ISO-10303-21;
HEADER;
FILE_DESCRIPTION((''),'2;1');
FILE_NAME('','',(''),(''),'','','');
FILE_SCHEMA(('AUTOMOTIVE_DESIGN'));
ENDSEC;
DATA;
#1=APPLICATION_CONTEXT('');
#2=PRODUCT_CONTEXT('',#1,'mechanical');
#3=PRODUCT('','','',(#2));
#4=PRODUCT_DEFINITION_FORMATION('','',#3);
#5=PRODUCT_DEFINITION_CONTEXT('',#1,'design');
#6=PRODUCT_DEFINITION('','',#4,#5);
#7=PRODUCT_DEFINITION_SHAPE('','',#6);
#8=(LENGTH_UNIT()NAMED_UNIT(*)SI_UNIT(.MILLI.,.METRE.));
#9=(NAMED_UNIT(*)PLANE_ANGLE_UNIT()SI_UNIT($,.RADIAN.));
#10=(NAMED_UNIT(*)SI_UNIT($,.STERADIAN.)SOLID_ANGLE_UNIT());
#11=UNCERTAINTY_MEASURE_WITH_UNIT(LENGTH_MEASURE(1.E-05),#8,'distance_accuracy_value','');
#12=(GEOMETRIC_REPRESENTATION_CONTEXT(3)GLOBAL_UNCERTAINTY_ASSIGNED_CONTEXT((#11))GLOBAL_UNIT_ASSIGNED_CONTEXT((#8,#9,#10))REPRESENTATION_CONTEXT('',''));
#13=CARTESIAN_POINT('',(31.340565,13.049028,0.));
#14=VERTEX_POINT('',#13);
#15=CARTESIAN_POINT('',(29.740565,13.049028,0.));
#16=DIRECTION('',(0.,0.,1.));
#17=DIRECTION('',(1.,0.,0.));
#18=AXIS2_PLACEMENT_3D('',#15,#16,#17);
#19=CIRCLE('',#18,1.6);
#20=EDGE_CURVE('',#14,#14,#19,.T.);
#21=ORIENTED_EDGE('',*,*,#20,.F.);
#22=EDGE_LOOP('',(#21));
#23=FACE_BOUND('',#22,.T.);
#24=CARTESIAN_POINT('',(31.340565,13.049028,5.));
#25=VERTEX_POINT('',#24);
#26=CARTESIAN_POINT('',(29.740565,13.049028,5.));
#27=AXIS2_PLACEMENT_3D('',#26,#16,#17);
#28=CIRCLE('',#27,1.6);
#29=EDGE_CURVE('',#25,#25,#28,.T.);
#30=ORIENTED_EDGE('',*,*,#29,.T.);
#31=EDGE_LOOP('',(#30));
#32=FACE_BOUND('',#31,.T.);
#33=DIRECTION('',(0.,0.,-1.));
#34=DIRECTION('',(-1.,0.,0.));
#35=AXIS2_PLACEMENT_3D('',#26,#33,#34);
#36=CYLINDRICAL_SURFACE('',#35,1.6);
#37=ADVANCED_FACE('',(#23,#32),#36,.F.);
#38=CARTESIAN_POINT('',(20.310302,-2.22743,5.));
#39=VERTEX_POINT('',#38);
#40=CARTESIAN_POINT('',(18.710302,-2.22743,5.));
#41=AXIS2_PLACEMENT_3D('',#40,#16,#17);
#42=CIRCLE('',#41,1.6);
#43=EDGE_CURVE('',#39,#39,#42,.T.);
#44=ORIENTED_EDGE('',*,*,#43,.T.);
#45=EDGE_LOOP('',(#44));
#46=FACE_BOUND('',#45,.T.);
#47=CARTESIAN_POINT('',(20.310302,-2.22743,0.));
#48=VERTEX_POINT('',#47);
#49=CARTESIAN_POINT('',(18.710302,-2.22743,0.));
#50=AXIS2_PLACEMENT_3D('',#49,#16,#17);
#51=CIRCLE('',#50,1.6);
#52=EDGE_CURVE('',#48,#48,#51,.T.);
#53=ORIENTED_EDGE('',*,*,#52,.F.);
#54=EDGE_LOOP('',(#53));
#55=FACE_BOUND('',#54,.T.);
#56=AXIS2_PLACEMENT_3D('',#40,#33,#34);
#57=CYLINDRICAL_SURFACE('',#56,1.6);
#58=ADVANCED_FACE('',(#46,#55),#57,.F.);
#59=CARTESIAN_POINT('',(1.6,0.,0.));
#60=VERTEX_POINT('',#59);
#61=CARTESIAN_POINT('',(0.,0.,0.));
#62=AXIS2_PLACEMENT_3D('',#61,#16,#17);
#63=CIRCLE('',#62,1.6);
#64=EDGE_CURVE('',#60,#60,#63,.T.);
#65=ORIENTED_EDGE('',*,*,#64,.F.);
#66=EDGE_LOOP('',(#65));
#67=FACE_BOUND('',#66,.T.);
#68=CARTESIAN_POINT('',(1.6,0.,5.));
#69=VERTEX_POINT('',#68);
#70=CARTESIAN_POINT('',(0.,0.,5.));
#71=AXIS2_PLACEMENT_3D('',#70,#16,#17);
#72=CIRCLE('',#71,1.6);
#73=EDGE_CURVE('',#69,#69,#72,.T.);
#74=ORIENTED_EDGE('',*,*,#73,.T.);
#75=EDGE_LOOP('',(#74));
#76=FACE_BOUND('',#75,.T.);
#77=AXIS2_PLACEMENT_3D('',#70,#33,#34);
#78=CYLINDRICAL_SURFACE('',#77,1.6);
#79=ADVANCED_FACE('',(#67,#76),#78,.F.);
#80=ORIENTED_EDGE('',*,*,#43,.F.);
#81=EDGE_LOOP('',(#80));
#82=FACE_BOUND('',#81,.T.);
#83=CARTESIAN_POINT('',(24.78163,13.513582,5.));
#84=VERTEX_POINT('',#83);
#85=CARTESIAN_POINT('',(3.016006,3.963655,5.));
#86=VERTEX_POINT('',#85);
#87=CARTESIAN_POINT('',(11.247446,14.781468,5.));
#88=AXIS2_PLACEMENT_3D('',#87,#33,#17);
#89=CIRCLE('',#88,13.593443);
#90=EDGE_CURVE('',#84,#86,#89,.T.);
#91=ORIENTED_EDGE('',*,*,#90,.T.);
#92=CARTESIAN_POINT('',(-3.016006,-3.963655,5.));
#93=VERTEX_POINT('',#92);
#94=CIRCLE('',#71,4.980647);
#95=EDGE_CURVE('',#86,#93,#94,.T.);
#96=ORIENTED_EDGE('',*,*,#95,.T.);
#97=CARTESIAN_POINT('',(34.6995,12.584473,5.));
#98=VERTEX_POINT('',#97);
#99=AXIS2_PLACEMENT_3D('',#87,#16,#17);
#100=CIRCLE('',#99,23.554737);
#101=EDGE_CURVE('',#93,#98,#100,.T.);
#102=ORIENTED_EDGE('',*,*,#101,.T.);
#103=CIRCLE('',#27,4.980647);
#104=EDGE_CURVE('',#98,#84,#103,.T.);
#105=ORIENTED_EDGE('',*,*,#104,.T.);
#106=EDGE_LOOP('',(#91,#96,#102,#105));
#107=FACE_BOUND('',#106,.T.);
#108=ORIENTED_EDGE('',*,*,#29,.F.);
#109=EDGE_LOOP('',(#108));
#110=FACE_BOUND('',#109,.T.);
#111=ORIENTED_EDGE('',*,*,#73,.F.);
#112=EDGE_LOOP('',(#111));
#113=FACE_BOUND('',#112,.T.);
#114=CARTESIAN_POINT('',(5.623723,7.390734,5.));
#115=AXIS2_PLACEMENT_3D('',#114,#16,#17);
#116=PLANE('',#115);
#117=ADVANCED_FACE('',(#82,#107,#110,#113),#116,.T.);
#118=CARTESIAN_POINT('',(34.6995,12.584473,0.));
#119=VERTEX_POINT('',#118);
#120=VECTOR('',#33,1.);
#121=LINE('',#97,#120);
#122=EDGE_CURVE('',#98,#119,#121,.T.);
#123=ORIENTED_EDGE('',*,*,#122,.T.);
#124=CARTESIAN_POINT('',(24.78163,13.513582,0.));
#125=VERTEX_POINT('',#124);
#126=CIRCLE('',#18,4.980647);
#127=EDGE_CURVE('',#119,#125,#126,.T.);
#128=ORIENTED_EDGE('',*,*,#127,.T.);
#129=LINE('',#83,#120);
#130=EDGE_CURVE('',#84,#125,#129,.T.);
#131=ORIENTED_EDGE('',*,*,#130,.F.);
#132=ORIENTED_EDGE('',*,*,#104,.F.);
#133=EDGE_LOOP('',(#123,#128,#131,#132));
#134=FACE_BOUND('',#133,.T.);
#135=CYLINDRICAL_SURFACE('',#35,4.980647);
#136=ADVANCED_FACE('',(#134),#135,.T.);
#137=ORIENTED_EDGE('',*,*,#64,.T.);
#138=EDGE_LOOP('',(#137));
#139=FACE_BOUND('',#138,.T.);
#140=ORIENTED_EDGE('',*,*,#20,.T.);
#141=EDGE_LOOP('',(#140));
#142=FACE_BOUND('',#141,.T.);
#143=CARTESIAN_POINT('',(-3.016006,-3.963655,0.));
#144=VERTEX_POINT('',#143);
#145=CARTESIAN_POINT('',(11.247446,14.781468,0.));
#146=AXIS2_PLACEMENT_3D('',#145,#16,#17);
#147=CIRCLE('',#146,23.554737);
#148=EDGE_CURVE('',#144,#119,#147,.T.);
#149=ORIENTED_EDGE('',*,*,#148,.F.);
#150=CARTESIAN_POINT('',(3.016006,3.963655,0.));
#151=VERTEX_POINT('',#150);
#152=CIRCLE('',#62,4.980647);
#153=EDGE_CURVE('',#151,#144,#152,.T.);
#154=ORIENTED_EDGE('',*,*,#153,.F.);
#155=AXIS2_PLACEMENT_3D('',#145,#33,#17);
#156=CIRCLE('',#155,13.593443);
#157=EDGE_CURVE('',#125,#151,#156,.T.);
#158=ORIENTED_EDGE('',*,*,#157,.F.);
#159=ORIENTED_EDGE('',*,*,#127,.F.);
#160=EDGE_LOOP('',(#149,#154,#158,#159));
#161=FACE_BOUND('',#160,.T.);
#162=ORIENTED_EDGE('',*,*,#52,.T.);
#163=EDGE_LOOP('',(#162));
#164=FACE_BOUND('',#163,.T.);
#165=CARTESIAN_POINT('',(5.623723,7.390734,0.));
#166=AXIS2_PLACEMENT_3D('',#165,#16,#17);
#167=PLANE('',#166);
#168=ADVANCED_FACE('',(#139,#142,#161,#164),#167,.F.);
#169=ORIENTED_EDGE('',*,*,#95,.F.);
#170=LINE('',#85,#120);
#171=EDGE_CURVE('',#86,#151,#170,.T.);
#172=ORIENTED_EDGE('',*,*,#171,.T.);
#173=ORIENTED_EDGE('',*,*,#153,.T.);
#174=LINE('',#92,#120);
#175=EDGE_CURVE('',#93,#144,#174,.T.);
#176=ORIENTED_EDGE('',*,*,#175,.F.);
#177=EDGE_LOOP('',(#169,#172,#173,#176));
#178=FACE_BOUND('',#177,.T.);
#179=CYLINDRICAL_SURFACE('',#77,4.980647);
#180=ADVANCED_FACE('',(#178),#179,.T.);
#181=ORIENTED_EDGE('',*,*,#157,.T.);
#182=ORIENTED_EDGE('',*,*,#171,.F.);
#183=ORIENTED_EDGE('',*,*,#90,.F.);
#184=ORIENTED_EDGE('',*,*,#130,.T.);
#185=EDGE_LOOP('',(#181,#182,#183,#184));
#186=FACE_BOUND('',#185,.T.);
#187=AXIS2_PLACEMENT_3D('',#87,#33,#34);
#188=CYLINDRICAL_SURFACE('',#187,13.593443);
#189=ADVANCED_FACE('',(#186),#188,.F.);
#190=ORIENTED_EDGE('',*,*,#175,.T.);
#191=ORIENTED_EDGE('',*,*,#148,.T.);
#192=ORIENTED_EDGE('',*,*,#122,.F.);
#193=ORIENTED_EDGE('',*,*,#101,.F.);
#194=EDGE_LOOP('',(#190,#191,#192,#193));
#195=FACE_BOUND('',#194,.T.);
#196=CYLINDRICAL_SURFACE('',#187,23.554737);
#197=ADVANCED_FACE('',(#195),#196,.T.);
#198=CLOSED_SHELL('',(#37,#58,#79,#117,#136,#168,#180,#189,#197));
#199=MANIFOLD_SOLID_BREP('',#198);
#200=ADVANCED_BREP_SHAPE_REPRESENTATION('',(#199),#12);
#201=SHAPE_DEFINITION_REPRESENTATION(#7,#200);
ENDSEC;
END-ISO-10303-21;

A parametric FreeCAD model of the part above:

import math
import FreeCAD as App
import Part
import Sketcher

doc = App.newDocument("Part")
body = doc.addObject("PartDesign::Body", "Body")

# Sketch on XY plane
sketch1 = doc.addObject("Sketcher::SketchObject", "Sketch")
body.addObject(sketch1)
sketch1.AttachmentSupport = (doc.XY_Plane, [""])
sketch1.MapMode = "FlatFace"
sketch1.addGeometry([
    Part.ArcOfCircle(Part.Circle(App.Vector(11.247446, 14.781468, 0), App.Vector(0, 0, 1), 23.554737), math.radians(-127.268063), math.radians(-5.351864)),  # 0
    Part.ArcOfCircle(Part.Circle(App.Vector(29.740565, 13.049028, 0), App.Vector(0, 0, 1), 4.980647), math.radians(-5.351864), math.radians(174.648136)),  # 1
    Part.ArcOfCircle(Part.Circle(App.Vector(11.247446, 14.781468, 0), App.Vector(0, 0, 1), 13.593443), math.radians(-127.268063), math.radians(-5.351864)),  # 2
    Part.ArcOfCircle(Part.Circle(App.Vector(0, 0, 0), App.Vector(0, 0, 1), 4.980647), math.radians(52.731937), math.radians(232.731937)),  # 3
    Part.Circle(App.Vector(0, 0, 0), App.Vector(0, 0, 1), 1.6),  # 4
    Part.Circle(App.Vector(18.710302, -2.22743, 0), App.Vector(0, 0, 1), 1.6),  # 5
    Part.Circle(App.Vector(29.740565, 13.049028, 0), App.Vector(0, 0, 1), 1.6),  # 6
], False)
sketch1.addConstraint([
    Sketcher.Constraint("Tangent", 0, 2, 1, 1),
    Sketcher.Constraint("Tangent", 1, 2, 2, 2),
    Sketcher.Constraint("Tangent", 2, 1, 3, 1),
    Sketcher.Constraint("Tangent", 3, 2, 0, 1),
    Sketcher.Constraint("Coincident", 3, 3, -1, 1),
    Sketcher.Constraint("Coincident", 4, 3, -1, 1),
    Sketcher.Constraint("Coincident", 2, 3, 0, 3),
    Sketcher.Constraint("Coincident", 6, 3, 1, 3),
    Sketcher.Constraint("Equal", 4, 5),
    Sketcher.Constraint("Equal", 5, 6),
    Sketcher.Constraint("Diameter", 4, 3.2),
    Sketcher.Constraint("Radius", 0, 23.554737),
    Sketcher.Constraint("Radius", 1, 4.980647),
    Sketcher.Constraint("DistanceX", -1, 1, 0, 2, 34.6995),
    Sketcher.Constraint("DistanceX", 5, 3, 0, 2, 15.989198),
    Sketcher.Constraint("DistanceY", 5, 3, -1, 1, 2.22743),
    Sketcher.Constraint("DistanceX", -1, 1, 1, 2, 24.78163),
])
pad1 = doc.addObject("PartDesign::Pad", "Pad")
body.addObject(pad1)
pad1.Profile = sketch1
pad1.Length = 5

doc.recompute()
